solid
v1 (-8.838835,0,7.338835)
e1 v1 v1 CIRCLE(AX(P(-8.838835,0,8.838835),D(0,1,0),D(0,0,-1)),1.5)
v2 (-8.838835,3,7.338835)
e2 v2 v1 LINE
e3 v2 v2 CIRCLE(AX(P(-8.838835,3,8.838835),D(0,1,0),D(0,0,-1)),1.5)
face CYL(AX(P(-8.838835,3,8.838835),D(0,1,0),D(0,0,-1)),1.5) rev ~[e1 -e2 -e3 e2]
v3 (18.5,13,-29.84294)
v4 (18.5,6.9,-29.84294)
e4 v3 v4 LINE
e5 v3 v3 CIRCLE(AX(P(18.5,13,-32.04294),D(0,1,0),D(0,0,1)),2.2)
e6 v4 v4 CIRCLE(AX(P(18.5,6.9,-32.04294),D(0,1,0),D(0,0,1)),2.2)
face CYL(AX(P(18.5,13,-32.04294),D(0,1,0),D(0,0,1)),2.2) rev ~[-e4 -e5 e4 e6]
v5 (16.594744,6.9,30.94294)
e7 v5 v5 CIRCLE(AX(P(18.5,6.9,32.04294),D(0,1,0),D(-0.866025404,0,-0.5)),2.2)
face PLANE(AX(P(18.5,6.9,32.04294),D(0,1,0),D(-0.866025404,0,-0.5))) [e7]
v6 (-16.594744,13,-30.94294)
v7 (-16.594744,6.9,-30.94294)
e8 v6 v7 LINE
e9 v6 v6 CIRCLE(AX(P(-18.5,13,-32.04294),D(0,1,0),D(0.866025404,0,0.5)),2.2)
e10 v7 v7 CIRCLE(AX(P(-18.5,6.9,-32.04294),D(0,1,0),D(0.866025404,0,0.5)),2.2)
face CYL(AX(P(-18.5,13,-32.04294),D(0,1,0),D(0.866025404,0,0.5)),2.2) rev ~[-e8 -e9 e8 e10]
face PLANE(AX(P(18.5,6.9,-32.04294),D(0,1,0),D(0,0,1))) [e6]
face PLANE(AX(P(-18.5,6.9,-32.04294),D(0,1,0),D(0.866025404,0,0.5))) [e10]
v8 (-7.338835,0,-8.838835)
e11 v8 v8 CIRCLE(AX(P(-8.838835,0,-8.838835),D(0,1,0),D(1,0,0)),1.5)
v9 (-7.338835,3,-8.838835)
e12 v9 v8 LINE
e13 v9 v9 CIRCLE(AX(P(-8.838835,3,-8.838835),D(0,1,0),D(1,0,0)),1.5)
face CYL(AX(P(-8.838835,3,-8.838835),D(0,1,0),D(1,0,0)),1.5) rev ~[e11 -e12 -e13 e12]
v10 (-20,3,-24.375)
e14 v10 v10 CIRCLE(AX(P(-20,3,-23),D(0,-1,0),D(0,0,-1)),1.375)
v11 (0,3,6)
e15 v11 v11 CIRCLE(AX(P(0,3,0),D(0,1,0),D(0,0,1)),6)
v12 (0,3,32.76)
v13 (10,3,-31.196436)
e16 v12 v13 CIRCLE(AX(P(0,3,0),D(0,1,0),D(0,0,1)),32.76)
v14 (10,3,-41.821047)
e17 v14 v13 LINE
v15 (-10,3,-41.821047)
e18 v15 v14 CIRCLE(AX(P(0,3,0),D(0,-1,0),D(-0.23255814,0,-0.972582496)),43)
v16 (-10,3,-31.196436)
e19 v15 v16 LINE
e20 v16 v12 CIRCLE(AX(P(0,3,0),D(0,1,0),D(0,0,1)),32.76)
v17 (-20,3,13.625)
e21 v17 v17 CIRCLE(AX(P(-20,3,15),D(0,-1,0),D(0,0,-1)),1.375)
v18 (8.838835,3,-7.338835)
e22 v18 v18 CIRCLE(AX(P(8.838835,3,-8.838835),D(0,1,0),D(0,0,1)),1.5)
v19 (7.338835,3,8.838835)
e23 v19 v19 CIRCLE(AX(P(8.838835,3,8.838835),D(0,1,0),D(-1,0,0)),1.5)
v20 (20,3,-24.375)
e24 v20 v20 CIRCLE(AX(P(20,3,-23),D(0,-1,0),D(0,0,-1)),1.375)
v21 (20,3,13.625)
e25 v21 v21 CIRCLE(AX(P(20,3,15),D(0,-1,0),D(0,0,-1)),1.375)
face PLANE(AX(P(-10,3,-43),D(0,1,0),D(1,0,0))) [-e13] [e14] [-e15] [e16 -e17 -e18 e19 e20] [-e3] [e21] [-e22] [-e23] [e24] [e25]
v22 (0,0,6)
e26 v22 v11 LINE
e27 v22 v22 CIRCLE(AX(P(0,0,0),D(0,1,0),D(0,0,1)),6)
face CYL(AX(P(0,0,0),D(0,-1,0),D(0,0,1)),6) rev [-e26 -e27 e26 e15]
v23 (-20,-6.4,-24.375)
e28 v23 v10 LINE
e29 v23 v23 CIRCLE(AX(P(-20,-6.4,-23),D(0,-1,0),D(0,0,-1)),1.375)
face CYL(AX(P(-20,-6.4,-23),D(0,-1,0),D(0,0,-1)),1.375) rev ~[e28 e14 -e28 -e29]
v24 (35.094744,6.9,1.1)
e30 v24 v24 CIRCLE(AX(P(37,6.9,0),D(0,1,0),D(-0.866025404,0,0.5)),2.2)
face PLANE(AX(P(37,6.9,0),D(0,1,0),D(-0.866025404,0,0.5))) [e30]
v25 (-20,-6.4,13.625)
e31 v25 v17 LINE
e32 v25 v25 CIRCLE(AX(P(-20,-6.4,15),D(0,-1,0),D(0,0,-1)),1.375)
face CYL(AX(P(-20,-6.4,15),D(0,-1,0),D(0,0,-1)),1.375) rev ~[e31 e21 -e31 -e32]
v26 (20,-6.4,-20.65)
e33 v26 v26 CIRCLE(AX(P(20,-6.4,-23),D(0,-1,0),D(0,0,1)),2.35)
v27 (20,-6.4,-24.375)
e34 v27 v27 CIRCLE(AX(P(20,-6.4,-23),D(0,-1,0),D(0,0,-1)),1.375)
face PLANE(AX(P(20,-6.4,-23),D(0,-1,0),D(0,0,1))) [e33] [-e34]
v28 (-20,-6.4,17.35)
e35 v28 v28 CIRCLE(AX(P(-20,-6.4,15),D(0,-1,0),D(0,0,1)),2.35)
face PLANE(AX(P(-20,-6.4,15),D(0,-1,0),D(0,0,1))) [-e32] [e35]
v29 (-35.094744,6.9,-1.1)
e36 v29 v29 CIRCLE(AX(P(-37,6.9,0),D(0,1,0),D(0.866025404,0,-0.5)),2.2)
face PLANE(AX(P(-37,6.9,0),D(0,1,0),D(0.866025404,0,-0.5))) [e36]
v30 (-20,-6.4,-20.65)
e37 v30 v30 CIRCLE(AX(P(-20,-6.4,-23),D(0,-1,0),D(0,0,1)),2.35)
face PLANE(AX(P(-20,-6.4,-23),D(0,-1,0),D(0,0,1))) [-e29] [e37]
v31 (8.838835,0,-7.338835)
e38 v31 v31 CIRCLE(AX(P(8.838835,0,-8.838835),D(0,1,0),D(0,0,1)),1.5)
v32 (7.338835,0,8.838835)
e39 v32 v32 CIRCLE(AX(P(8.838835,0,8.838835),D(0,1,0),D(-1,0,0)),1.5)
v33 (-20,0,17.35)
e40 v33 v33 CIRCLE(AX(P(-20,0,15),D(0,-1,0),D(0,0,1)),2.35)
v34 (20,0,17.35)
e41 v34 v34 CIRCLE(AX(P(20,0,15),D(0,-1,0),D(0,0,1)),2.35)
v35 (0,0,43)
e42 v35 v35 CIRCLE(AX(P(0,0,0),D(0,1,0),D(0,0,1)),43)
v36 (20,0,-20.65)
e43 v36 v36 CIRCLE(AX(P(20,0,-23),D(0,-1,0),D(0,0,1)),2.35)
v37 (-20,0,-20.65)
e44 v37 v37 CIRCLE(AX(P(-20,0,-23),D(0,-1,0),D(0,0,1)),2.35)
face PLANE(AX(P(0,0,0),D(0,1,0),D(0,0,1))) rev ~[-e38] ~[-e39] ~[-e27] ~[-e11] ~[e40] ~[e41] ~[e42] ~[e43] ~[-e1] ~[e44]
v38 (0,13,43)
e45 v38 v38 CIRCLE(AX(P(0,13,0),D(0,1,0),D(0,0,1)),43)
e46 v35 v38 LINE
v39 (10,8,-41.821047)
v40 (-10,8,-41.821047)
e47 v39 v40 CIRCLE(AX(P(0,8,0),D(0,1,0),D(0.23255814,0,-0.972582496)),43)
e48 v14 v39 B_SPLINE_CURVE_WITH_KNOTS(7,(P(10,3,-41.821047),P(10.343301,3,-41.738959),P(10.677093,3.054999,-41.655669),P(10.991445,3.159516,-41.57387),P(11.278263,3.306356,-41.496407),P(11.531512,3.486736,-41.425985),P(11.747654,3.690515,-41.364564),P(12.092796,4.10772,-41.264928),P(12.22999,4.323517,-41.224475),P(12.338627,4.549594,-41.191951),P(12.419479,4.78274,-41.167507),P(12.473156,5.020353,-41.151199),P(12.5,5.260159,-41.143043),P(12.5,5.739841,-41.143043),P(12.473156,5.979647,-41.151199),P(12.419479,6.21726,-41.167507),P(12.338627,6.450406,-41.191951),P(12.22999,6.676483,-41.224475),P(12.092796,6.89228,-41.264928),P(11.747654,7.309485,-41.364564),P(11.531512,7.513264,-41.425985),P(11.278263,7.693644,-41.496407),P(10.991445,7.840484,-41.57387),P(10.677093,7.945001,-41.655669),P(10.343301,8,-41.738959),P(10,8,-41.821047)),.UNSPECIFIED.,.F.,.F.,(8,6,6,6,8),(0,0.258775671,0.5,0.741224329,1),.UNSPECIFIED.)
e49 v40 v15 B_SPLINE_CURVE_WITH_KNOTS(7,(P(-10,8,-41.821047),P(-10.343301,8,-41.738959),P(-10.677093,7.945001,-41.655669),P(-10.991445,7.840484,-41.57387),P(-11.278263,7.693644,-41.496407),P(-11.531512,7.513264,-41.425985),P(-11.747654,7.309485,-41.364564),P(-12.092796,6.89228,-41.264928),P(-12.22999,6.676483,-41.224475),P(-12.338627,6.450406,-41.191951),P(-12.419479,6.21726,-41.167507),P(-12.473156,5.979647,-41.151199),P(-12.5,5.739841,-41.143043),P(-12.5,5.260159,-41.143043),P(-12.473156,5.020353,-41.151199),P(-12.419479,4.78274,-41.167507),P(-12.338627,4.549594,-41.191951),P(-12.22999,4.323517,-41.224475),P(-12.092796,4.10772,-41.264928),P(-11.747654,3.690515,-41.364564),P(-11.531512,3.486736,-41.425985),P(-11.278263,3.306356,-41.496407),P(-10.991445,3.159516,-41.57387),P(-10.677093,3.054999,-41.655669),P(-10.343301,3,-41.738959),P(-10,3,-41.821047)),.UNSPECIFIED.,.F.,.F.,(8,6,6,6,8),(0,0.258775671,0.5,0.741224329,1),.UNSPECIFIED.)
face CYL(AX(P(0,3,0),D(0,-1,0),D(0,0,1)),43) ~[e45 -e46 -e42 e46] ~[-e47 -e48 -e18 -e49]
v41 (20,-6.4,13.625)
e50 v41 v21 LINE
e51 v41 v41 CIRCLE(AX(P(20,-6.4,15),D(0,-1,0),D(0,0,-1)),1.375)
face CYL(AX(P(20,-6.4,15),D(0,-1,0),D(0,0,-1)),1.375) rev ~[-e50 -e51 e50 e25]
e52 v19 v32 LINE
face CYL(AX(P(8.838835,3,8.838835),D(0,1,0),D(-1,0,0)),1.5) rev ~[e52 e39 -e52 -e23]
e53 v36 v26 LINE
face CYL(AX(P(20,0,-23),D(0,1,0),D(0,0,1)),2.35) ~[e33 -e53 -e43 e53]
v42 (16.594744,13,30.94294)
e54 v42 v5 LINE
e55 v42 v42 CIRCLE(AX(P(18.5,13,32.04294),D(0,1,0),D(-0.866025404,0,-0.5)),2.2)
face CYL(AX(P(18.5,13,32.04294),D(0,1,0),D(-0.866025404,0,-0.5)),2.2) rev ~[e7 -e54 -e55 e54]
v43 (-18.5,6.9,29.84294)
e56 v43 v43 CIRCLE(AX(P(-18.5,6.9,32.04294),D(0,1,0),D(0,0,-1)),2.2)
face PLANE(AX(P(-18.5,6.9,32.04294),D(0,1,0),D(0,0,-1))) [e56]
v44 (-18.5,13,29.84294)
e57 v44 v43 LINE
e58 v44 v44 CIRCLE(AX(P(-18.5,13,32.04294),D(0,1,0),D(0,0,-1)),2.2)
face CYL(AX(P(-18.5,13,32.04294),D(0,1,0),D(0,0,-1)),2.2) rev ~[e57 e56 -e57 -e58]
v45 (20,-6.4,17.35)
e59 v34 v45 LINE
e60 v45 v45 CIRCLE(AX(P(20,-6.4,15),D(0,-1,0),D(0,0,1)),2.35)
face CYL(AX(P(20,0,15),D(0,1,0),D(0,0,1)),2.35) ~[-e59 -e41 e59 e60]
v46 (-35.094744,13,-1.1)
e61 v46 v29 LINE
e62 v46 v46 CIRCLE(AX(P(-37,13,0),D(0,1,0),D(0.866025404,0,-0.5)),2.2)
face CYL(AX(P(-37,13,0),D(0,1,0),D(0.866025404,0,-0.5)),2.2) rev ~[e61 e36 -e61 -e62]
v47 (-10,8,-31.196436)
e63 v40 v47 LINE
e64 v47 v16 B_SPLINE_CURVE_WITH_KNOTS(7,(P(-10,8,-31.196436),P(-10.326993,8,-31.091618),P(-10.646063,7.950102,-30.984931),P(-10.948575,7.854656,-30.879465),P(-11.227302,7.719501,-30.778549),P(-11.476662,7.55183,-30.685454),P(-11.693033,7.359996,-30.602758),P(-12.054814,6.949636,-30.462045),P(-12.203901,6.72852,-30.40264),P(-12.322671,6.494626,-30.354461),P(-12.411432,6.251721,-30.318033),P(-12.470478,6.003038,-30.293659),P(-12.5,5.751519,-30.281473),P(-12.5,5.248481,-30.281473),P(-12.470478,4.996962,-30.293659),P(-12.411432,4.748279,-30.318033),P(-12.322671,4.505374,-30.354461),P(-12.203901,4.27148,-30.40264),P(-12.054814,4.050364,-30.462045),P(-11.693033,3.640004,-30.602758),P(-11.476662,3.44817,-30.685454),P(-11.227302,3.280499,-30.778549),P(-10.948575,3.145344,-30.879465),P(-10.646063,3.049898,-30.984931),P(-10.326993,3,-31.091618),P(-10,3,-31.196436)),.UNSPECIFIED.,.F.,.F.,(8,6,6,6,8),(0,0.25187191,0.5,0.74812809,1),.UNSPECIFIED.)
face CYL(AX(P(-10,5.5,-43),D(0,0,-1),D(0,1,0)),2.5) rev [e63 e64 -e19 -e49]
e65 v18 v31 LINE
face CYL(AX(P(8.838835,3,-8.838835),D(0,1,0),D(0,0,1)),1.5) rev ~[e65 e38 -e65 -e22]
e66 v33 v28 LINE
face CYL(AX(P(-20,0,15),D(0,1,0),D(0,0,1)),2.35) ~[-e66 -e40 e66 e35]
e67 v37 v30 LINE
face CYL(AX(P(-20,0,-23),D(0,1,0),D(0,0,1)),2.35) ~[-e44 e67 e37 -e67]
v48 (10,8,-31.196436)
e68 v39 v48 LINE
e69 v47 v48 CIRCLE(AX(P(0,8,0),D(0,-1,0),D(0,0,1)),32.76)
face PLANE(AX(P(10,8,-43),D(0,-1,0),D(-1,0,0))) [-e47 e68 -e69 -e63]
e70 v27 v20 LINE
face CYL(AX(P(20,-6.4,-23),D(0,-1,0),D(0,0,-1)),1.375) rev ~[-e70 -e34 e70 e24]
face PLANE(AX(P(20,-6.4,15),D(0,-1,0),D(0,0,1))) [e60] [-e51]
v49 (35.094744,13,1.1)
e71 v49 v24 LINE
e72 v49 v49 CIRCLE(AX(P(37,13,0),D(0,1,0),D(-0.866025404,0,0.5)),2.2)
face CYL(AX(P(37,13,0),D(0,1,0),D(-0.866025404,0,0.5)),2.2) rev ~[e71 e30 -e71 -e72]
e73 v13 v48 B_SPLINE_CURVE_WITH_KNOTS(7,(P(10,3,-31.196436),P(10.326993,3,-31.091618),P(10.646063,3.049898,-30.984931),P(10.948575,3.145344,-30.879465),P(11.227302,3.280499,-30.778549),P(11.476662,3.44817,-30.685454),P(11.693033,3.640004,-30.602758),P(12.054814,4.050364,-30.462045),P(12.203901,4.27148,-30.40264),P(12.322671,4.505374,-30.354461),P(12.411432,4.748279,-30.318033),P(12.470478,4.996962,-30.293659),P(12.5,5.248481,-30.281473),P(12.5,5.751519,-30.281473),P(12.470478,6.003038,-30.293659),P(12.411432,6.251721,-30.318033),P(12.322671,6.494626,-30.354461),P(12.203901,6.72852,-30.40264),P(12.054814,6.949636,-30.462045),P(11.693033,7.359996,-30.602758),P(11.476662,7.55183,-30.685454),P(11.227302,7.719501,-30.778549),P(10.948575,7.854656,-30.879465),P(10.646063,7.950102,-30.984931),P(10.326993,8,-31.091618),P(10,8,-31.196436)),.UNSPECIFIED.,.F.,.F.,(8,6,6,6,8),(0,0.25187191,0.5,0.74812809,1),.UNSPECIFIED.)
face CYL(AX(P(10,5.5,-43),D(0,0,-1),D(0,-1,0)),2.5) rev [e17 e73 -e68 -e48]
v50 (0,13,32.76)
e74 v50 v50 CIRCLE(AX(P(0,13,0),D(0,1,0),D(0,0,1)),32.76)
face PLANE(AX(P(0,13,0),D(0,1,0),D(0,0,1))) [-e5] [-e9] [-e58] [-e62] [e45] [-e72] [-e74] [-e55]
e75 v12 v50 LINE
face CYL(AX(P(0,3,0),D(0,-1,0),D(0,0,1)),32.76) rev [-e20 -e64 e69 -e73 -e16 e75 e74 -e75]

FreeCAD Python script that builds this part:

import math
import FreeCAD as App
import Part
import Sketcher
from FreeCAD import Vector

doc = App.newDocument("Part")
body = doc.addObject("PartDesign::Body", "Body")

sketch1 = body.newObject("Sketcher::SketchObject", "Sketch")
sketch1.AttachmentSupport = (doc.getObject("XZ_Plane"), [""])
sketch1.MapMode = "FlatFace"
sketch1.addGeometry(Part.Circle(Vector(0, 0, 0), Vector(0, 0, 1), 43), False)
sketch1.addGeometry(Part.Circle(Vector(0, 0, 0), Vector(0, 0, 1), 6), False)
sketch1.addConstraint(Sketcher.Constraint("Coincident", 0, 3, -1, 1))
sketch1.addConstraint(Sketcher.Constraint("Coincident", 1, 3, -1, 1))
sketch1.addConstraint(Sketcher.Constraint("Diameter", 0, 86.0))
sketch1.addConstraint(Sketcher.Constraint("Diameter", 1, 12.0))
pad1 = body.newObject("PartDesign::Pad", "Pad")
pad1.Profile = sketch1
pad1.Length = 3
pad1.Reversed = True

sketch2 = body.newObject("Sketcher::SketchObject", "Sketch001")
sketch2.AttachmentSupport = (doc.getObject("XZ_Plane"), [""])
sketch2.MapMode = "FlatFace"
sketch2.AttachmentOffset = App.Placement(Vector(0, 0, -3), App.Rotation())
sketch2.addGeometry(Part.Circle(Vector(0, 0, 0), Vector(0, 0, 1), 43), False)
sketch2.addGeometry(Part.Circle(Vector(0, 0, 0), Vector(0, 0, 1), 33), False)
sketch2.addConstraint(Sketcher.Constraint("Coincident", 0, 3, -1, 1))
sketch2.addConstraint(Sketcher.Constraint("Coincident", 1, 3, -1, 1))
sketch2.addConstraint(Sketcher.Constraint("Diameter", 0, 86.0))
sketch2.addConstraint(Sketcher.Constraint("Diameter", 1, 65.52))
pad2 = body.newObject("PartDesign::Pad", "Pad001")
pad2.Profile = sketch2
pad2.Length = 10
pad2.Reversed = True

sketch3 = body.newObject("Sketcher::SketchObject", "Sketch002")
sketch3.AttachmentSupport = (doc.getObject("XZ_Plane"), [""])
sketch3.MapMode = "FlatFace"
sketch3.addGeometry(Part.Circle(Vector(20, 15, 0), Vector(0, 0, 1), 2.4), False)
sketch3.addGeometry(Part.Circle(Vector(-20, 15, 0), Vector(0, 0, 1), 2.4), False)
sketch3.addGeometry(Part.Circle(Vector(20, -23, 0), Vector(0, 0, 1), 2.4), False)
sketch3.addGeometry(Part.Circle(Vector(-20, -23, 0), Vector(0, 0, 1), 2.4), False)
sketch3.addConstraint(Sketcher.Constraint("Equal", 0, 1))
sketch3.addConstraint(Sketcher.Constraint("Equal", 1, 2))
sketch3.addConstraint(Sketcher.Constraint("Equal", 2, 3))
sketch3.addConstraint(Sketcher.Constraint("Symmetric", 0, 3, 1, 3, -2))
sketch3.addConstraint(Sketcher.Constraint("Symmetric", 2, 3, 3, 3, -2))
sketch3.addConstraint(Sketcher.Constraint("Vertical", 0, 3, 2, 3))
sketch3.addConstraint(Sketcher.Constraint("Diameter", 0, 4.7))
sketch3.addConstraint(Sketcher.Constraint("DistanceX", -1, 1, 0, 3, 20.0))
sketch3.addConstraint(Sketcher.Constraint("DistanceY", -1, 1, 0, 3, 15.0))
sketch3.addConstraint(Sketcher.Constraint("DistanceY", 2, 3, -1, 1, 23.0))
pad3 = body.newObject("PartDesign::Pad", "Pad002")
pad3.Profile = sketch3
pad3.Length = 6.4

sketch4 = body.newObject("Sketcher::SketchObject", "Sketch003")
sketch4.AttachmentSupport = (doc.getObject("XZ_Plane"), [""])
sketch4.MapMode = "FlatFace"
sketch4.AttachmentOffset = App.Placement(Vector(0, 0, 6.4), App.Rotation())
sketch4.addGeometry(Part.Circle(Vector(-20, 15, 0), Vector(0, 0, 1), 1.4), False)
sketch4.addGeometry(Part.Circle(Vector(20, 15, 0), Vector(0, 0, 1), 1.4), False)
sketch4.addGeometry(Part.Circle(Vector(20, -23, 0), Vector(0, 0, 1), 1.4), False)
sketch4.addGeometry(Part.Circle(Vector(-20, -23, 0), Vector(0, 0, 1), 1.4), False)
sketch4.addConstraint(Sketcher.Constraint("Equal", 0, 1))
sketch4.addConstraint(Sketcher.Constraint("Equal", 1, 2))
sketch4.addConstraint(Sketcher.Constraint("Equal", 2, 3))
sketch4.addConstraint(Sketcher.Constraint("Symmetric", 0, 3, 1, 3, -2))
sketch4.addConstraint(Sketcher.Constraint("Symmetric", 2, 3, 3, 3, -2))
sketch4.addConstraint(Sketcher.Constraint("Vertical", 1, 3, 2, 3))
sketch4.addConstraint(Sketcher.Constraint("Diameter", 0, 2.75))
sketch4.addConstraint(Sketcher.Constraint("DistanceX", 0, 3, -1, 1, 20.0))
sketch4.addConstraint(Sketcher.Constraint("DistanceY", -1, 1, 0, 3, 15.0))
sketch4.addConstraint(Sketcher.Constraint("DistanceY", 2, 3, -1, 1, 23.0))
pocket1 = body.newObject("PartDesign::Pocket", "Pocket")
pocket1.Profile = sketch4
pocket1.Type = "ThroughAll"

sketch5 = body.newObject("Sketcher::SketchObject", "Sketch004")
sketch5.AttachmentSupport = (doc.getObject("XZ_Plane"), [""])
sketch5.MapMode = "FlatFace"
sketch5.AttachmentOffset = App.Placement(Vector(0, 0, -13), App.Rotation())
sketch5.addGeometry(Part.Circle(Vector(18.5, -32, 0), Vector(0, 0, 1), 2.2), False)
sketch5.addConstraint(Sketcher.Constraint("Diameter", 0, 4.4))
sketch5.addConstraint(Sketcher.Constraint("DistanceX", -1, 1, 0, 3, 18.5))
sketch5.addConstraint(Sketcher.Constraint("DistanceY", 0, 3, -1, 1, 32.04294))
pocket2 = body.newObject("PartDesign::Pocket", "Pocket001")
pocket2.Profile = sketch5
pocket2.Length = 6.1
pocket2.Reversed = True

sketch6 = body.newObject("Sketcher::SketchObject", "Sketch005")
sketch6.AttachmentSupport = (doc.getObject("XY_Plane"), [""])
sketch6.MapMode = "FlatFace"
sketch6.AttachmentOffset = App.Placement(Vector(0, 0, -43), App.Rotation())
sketch6.addGeometry(Part.LineSegment(Vector(-10, 8, 0), Vector(10, 8, 0)), False)
sketch6.addGeometry(Part.ArcOfCircle(Part.Circle(Vector(10, 5.5, 0), Vector(0, 0, 1), 2.5), math.radians(-90), math.radians(90)), False)
sketch6.addGeometry(Part.LineSegment(Vector(10, 3, 0), Vector(-10, 3, 0)), False)
sketch6.addGeometry(Part.ArcOfCircle(Part.Circle(Vector(-10, 5.5, 0), Vector(0, 0, 1), 2.5), math.radians(90), math.radians(270)), False)
sketch6.addConstraint(Sketcher.Constraint("Tangent", 0, 2, 1, 2))
sketch6.addConstraint(Sketcher.Constraint("Tangent", 1, 1, 2, 1))
sketch6.addConstraint(Sketcher.Constraint("Tangent", 2, 2, 3, 2))
sketch6.addConstraint(Sketcher.Constraint("Tangent", 3, 1, 0, 1))
sketch6.addConstraint(Sketcher.Constraint("Horizontal", 0))
sketch6.addConstraint(Sketcher.Constraint("Horizontal", 2))
sketch6.addConstraint(Sketcher.Constraint("Radius", 1, 2.5))
sketch6.addConstraint(Sketcher.Constraint("DistanceX", 0, 1, 0, 2, 20.0))
sketch6.addConstraint(Sketcher.Constraint("DistanceX", -1, 1, 1, 3, 10.0))
sketch6.addConstraint(Sketcher.Constraint("DistanceY", -1, 1, 0, 2, 8.0))
pocket3 = body.newObject("PartDesign::Pocket", "Pocket002")
pocket3.Profile = sketch6
pocket3.Length = 20
pocket3.Reversed = True

sketch7 = body.newObject("Sketcher::SketchObject", "Sketch006")
sketch7.AttachmentSupport = (doc.getObject("XZ_Plane"), [""])
sketch7.MapMode = "FlatFace"
sketch7.AttachmentOffset = App.Placement(Vector(0, 0, -3), App.Rotation())
sketch7.addGeometry(Part.Circle(Vector(8.8, -8.8, 0), Vector(0, 0, 1), 1.5), False)
sketch7.addConstraint(Sketcher.Constraint("Diameter", 0, 3.0))
sketch7.addConstraint(Sketcher.Constraint("DistanceX", -1, 1, 0, 3, 8.838835))
sketch7.addConstraint(Sketcher.Constraint("DistanceY", 0, 3, -1, 1, 8.838835))
pocket4 = body.newObject("PartDesign::Pocket", "Pocket003")
pocket4.Profile = sketch7
pocket4.Length = 6.1
pocket4.Reversed = True
doc.recompute()

polarpattern = body.newObject("PartDesign::PolarPattern", "PolarPattern")
polarpattern.Originals = [pocket4]
polarpattern.Axis = (doc.getObject("Y_Axis"), [""])
polarpattern.Angle = 360
polarpattern.Occurrences = 4
body.Tip = polarpattern
doc.recompute()

polarpattern2 = body.newObject("PartDesign::PolarPattern", "PolarPattern001")
polarpattern2.Originals = [pocket2]
polarpattern2.Axis = (doc.getObject("Y_Axis"), [""])
polarpattern2.Angle = 360
polarpattern2.Occurrences = 6
body.Tip = polarpattern2

doc.recompute()
